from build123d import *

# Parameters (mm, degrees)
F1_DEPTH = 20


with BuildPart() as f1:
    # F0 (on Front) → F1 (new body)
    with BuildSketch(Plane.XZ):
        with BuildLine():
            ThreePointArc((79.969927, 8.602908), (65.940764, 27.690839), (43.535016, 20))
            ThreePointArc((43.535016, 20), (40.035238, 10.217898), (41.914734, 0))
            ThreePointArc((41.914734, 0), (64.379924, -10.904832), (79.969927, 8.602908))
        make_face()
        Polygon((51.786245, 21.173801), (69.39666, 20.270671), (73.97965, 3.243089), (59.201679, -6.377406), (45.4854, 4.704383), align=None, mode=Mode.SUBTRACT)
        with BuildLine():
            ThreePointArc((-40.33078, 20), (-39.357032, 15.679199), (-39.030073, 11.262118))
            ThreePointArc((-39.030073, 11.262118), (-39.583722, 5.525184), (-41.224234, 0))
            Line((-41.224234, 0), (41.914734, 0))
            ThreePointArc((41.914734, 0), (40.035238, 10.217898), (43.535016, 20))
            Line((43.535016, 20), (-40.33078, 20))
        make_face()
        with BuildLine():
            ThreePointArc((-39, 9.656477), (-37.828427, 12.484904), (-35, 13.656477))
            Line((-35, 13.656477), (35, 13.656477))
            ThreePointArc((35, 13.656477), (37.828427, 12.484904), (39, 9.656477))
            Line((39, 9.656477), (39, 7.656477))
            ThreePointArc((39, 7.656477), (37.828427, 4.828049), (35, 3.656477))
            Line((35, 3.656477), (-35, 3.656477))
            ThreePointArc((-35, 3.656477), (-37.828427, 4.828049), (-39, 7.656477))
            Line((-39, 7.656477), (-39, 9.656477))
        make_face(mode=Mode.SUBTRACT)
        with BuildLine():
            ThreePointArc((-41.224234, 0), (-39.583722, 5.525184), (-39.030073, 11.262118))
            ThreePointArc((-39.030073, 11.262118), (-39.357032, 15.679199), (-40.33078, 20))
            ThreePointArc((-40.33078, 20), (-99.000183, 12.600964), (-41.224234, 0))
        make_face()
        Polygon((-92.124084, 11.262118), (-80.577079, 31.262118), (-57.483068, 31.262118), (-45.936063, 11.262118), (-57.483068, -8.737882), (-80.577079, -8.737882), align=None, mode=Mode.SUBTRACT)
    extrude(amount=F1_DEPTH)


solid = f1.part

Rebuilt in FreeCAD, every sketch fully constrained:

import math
import FreeCAD as App
import Part
import Sketcher
from FreeCAD import Vector
Q = App.Units.Quantity

doc = App.newDocument("Part")
params = doc.addObject("Spreadsheet::Sheet", "Params")
for row, (alias, value) in enumerate([
    ("sketch1_radius", "20 mm"),
    ("sketch1_radius2", "30 mm"),
    ("sketch1_radius3", "4 mm"),
    ("sketch1_width", "70 mm"),
    ("sketch1_height", "2 mm"),
    ("pad1_length", "20 mm"),
], start=1):
    params.set(f"A{row}", alias)
    params.set(f"B{row}", "=" + value)
    params.setAlias(f"B{row}", alias)

body = doc.addObject("PartDesign::Body", "Body")

sketch1 = doc.addObject("Sketcher::SketchObject", "Sketch")
body.addObject(sketch1)
sketch1.AttachmentSupport = (doc.XZ_Plane, [""])
sketch1.MapMode = "FlatFace"
sketch1.addGeometry([
    Part.ArcOfCircle(Part.Circle(Vector(60, 8.6, 0), Vector(0, 0, 1), 20), math.radians(0), math.radians(145)),
    Part.LineSegment(Vector(43.5, 20, 0), Vector(-40.3, 20, 0)),
    Part.ArcOfCircle(Part.Circle(Vector(-69, 11.3, 0), Vector(0, 0, 1), 30), math.radians(17), math.radians(338)),
    Part.LineSegment(Vector(-41.2, 0, 0), Vector(41.9, 0, 0)),
    Part.ArcOfCircle(Part.Circle(Vector(60, 8.6, 0), Vector(0, 0, 1), 20), math.radians(-155), math.radians(0)),
    Part.LineSegment(Vector(-39, 7.7, 0), Vector(-39, 9.7, 0)),
    Part.ArcOfCircle(Part.Circle(Vector(-35, 9.7, 0), Vector(0, 0, 1), 4), math.radians(90), math.radians(180)),
    Part.LineSegment(Vector(-35, 13.7, 0), Vector(35, 13.7, 0)),
    Part.ArcOfCircle(Part.Circle(Vector(35, 9.7, 0), Vector(0, 0, 1), 4), math.radians(0), math.radians(90)),
    Part.LineSegment(Vector(39, 9.7, 0), Vector(39, 7.7, 0)),
    Part.ArcOfCircle(Part.Circle(Vector(35, 7.7, 0), Vector(0, 0, 1), 4), math.radians(-90), math.radians(0)),
    Part.LineSegment(Vector(35, 3.7, 0), Vector(-35, 3.7, 0)),
    Part.ArcOfCircle(Part.Circle(Vector(-35, 7.7, 0), Vector(0, 0, 1), 4), math.radians(180), math.radians(270)),
    Part.LineSegment(Vector(45.5, 4.7, 0), Vector(51.8, 21.2, 0)),
    Part.LineSegment(Vector(51.8, 21.2, 0), Vector(69.4, 20.3, 0)),
    Part.LineSegment(Vector(69.4, 20.3, 0), Vector(74, 3.2, 0)),
    Part.LineSegment(Vector(74, 3.2, 0), Vector(59.2, -6.4, 0)),
    Part.LineSegment(Vector(59.2, -6.4, 0), Vector(45.5, 4.7, 0)),
    Part.LineSegment(Vector(-80.6, -8.7, 0), Vector(-92.1, 11.3, 0)),
    Part.LineSegment(Vector(-92.1, 11.3, 0), Vector(-80.6, 31.3, 0)),
    Part.LineSegment(Vector(-80.6, 31.3, 0), Vector(-57.5, 31.3, 0)),
    Part.LineSegment(Vector(-57.5, 31.3, 0), Vector(-45.9, 11.3, 0)),
    Part.LineSegment(Vector(-45.9, 11.3, 0), Vector(-57.5, -8.7, 0)),
    Part.LineSegment(Vector(-57.5, -8.7, 0), Vector(-80.6, -8.7, 0)),
], False)
sketch1.addConstraint([
    Sketcher.Constraint("Coincident", 0, 2, 1, 1),
    Sketcher.Constraint("Coincident", 1, 2, 2, 1),
    Sketcher.Constraint("Coincident", 2, 2, 3, 1),
    Sketcher.Constraint("Coincident", 3, 2, 4, 1),
    Sketcher.Constraint("Tangent", 4, 2, 0, 1),
    Sketcher.Constraint("Tangent", 5, 2, 6, 2),
    Sketcher.Constraint("Tangent", 6, 1, 7, 1),
    Sketcher.Constraint("Tangent", 7, 2, 8, 2),
    Sketcher.Constraint("Tangent", 8, 1, 9, 1),
    Sketcher.Constraint("Tangent", 9, 2, 10, 2),
    Sketcher.Constraint("Tangent", 10, 1, 11, 1),
    Sketcher.Constraint("Tangent", 11, 2, 12, 2),
    Sketcher.Constraint("Tangent", 12, 1, 5, 1),
    Sketcher.Constraint("Coincident", 13, 2, 14, 1),
    Sketcher.Constraint("Coincident", 14, 2, 15, 1),
    Sketcher.Constraint("Coincident", 15, 2, 16, 1),
    Sketcher.Constraint("Coincident", 16, 2, 17, 1),
    Sketcher.Constraint("Coincident", 17, 2, 13, 1),
    Sketcher.Constraint("Coincident", 18, 2, 19, 1),
    Sketcher.Constraint("Coincident", 19, 2, 20, 1),
    Sketcher.Constraint("Coincident", 20, 2, 21, 1),
    Sketcher.Constraint("Coincident", 21, 2, 22, 1),
    Sketcher.Constraint("Coincident", 22, 2, 23, 1),
    Sketcher.Constraint("Coincident", 23, 2, 18, 1),
    Sketcher.Constraint("Horizontal", 1),
    Sketcher.Constraint("Horizontal", 3),
    Sketcher.Constraint("Vertical", 5),
    Sketcher.Constraint("Horizontal", 7),
    Sketcher.Constraint("Vertical", 9),
    Sketcher.Constraint("Horizontal", 11),
    Sketcher.Constraint("Horizontal", 20),
    Sketcher.Constraint("Horizontal", 23),
    Sketcher.Constraint("Equal", 0, 4),
    Sketcher.Constraint("Equal", 6, 8),
    Sketcher.Constraint("Equal", 8, 10),
    Sketcher.Constraint("Equal", 10, 12),
    Sketcher.Constraint("PointOnObject", 2, 2, -1),
    Sketcher.Constraint("Parallel", 18, 21),
    Sketcher.Constraint("Parallel", 19, 22),
    Sketcher.Constraint("Horizontal", 0, 3, 4, 2),
    Sketcher.Constraint("Horizontal", 2, 3, 18, 2),
    Sketcher.Constraint("Horizontal", 18, 2, 21, 2),
    Sketcher.Constraint("Vertical", 20, 2, 22, 2),
    Sketcher.Constraint("Vertical", 19, 2, 23, 2),
    Sketcher.Constraint("Equal", 13, 14),
    Sketcher.Constraint("Equal", 14, 15),
    Sketcher.Constraint("Equal", 15, 16),
    Sketcher.Constraint("Equal", 16, 17),
    Sketcher.Constraint("Radius", 0, Q("20 mm")),
    Sketcher.Constraint("Radius", 2, Q("30 mm")),
    Sketcher.Constraint("Radius", 6, Q("4 mm")),
    Sketcher.Constraint("DistanceX", 7, 1, 7, 2, Q("70 mm")),
    Sketcher.Constraint("DistanceY", 5, 1, 5, 2, Q("2 mm")),
    Sketcher.Constraint("Angle", 18, Q("119.999999 deg")),
    Sketcher.Constraint("DistanceX", 6, 3, -1, 1, Q("35 mm")),
    Sketcher.Constraint("DistanceY", -1, 1, 0, 2, Q("20 mm")),
    Sketcher.Constraint("DistanceX", 2, 3, 0, 3, Q("129 mm")),
    Sketcher.Constraint("DistanceY", 18, 2, 19, 2, Q("20 mm")),
    Sketcher.Constraint("DistanceX", 3, 1, 3, 2, Q("83.138968 mm")),
    Sketcher.Constraint("DistanceX", 20, 1, 20, 2, Q("23.094011 mm")),
    Sketcher.Constraint("DistanceY", -1, 1, 13, 2, Q("21.173801 mm")),
    Sketcher.Constraint("DistanceX", -1, 1, 17, 2, Q("45.4854 mm")),
    Sketcher.Constraint("DistanceX", 19, 2, 1, 2, Q("40.246299 mm")),
    Sketcher.Constraint("Distance", 13, Q("17.633558 mm")),
    Sketcher.Constraint("DistanceX", 1, 2, 1, 1, Q("83.865796 mm")),
    Sketcher.Constraint("DistanceX", 1, 2, -1, 1, Q("40.33078 mm")),
    Sketcher.Constraint("DistanceX", -1, 1, 14, 2, Q("69.39666 mm")),
    Sketcher.Constraint("DistanceY", -1, 1, 14, 2, Q("20.270671 mm")),
    Sketcher.Constraint("DistanceX", -1, 1, 15, 2, Q("73.97965 mm")),
    Sketcher.Constraint("DistanceY", 6, 3, 2, 3, Q("1.605642 mm")),
])
sketch1.setExpression("Constraints[48]", "Params.sketch1_radius")
sketch1.setExpression("Constraints[49]", "Params.sketch1_radius2")
sketch1.setExpression("Constraints[50]", "Params.sketch1_radius3")
sketch1.setExpression("Constraints[51]", "Params.sketch1_width")
sketch1.setExpression("Constraints[52]", "Params.sketch1_height")
pad1 = doc.addObject("PartDesign::Pad", "Pad")
body.addObject(pad1)
pad1.Profile = sketch1
pad1.setExpression("Length", "Params.pad1_length")

doc.recompute()
